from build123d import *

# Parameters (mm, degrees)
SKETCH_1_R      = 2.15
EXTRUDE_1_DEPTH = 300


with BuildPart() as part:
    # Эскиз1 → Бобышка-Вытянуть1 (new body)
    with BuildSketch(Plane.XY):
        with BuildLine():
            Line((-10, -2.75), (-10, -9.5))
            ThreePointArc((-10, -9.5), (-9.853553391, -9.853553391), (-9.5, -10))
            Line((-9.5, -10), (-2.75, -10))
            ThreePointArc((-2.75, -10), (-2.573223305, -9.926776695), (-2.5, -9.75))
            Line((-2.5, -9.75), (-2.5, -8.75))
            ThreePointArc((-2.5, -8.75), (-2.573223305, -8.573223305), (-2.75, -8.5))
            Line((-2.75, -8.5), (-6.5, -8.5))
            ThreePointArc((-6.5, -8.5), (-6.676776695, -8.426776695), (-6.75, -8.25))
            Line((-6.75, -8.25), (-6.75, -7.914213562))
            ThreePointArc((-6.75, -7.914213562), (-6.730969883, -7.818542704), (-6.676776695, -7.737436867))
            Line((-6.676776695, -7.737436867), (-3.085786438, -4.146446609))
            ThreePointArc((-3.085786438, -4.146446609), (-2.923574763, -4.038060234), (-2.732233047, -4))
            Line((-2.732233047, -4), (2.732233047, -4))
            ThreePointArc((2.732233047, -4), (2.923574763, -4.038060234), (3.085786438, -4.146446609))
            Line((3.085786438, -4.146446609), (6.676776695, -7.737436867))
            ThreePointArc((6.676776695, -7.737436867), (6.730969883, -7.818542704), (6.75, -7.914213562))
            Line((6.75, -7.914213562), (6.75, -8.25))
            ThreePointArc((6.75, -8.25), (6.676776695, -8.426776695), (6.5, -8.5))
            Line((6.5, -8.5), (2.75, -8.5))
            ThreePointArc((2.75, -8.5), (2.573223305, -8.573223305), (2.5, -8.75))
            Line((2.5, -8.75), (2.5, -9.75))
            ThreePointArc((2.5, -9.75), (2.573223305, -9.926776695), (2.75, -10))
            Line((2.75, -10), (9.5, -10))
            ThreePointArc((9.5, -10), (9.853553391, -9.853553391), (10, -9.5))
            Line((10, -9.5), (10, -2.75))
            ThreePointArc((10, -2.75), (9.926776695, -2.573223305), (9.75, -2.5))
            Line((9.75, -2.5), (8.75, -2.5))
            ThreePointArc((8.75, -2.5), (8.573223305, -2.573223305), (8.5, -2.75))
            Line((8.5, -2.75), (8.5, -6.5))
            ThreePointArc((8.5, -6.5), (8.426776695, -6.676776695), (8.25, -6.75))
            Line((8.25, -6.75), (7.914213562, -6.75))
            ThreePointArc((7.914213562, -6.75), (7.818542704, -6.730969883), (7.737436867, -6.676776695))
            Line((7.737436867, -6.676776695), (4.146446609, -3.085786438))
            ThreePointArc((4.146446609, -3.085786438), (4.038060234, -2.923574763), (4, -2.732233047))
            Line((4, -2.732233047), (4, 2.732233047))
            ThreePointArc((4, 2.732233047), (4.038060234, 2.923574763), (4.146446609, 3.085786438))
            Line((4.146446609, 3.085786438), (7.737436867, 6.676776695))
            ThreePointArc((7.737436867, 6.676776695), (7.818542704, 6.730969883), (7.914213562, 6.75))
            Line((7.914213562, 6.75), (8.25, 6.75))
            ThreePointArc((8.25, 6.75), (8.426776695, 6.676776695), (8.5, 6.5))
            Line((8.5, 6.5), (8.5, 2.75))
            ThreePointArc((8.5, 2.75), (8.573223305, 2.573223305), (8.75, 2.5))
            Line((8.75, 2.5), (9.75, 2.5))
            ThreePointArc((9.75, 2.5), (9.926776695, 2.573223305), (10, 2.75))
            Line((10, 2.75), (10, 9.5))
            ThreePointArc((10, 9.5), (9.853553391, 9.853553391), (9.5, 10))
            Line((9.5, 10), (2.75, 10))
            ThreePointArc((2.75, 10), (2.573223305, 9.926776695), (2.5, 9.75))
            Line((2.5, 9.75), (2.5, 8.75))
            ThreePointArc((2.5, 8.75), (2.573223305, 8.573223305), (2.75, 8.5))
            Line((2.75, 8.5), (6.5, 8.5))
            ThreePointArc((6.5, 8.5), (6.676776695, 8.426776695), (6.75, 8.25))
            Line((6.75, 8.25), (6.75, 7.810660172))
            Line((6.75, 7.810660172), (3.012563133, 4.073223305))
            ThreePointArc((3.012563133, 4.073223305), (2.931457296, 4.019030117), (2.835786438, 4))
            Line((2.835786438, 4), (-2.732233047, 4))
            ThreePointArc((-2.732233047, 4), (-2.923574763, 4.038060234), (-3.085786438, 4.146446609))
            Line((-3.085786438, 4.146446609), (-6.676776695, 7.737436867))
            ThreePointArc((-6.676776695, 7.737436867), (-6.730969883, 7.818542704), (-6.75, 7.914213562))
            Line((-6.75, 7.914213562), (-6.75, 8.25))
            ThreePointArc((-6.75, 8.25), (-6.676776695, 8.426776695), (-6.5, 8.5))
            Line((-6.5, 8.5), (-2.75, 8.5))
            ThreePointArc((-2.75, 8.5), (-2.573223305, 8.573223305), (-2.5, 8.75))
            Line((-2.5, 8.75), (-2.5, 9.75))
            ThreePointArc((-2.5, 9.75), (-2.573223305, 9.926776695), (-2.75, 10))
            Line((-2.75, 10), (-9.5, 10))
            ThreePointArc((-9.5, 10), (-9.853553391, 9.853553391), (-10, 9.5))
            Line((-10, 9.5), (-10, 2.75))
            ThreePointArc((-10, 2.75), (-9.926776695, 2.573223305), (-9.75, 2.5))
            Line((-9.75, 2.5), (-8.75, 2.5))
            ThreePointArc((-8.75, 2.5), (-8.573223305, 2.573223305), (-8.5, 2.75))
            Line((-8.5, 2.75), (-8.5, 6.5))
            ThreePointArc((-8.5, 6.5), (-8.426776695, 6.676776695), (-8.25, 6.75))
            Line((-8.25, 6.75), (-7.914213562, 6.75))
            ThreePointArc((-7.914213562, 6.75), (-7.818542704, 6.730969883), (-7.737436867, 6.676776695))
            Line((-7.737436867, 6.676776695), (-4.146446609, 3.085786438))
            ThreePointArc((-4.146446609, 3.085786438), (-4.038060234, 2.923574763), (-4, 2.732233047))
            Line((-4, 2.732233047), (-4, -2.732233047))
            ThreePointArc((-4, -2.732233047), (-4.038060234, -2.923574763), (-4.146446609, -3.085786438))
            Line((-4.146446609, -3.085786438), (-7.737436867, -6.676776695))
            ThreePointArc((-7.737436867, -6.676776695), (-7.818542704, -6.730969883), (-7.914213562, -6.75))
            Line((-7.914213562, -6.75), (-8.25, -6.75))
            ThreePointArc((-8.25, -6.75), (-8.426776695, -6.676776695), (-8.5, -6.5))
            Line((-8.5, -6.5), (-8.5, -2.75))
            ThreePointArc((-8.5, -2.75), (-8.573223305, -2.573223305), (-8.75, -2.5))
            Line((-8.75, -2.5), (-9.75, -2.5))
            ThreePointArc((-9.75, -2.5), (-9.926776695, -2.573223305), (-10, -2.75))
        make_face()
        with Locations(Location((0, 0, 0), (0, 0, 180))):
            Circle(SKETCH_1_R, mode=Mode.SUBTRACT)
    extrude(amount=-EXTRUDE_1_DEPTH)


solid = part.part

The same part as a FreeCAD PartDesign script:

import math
import FreeCAD as App
import Part
import Sketcher
Q = App.Units.Quantity

doc = App.newDocument("Part")
params = doc.addObject("Spreadsheet::Sheet", "Params")
for row, (alias, value) in enumerate([
    ("sketch1_diameter", "4.3 mm"),
    ("sketch1_radius", "0.5 mm"),
    ("sketch1_width", "1 mm"),
    ("sketch1_radius2", "0.25 mm"),
    ("sketch1_width2", "6.75 mm"),
    ("pad1_length", "300 mm"),
], start=1):
    params.set(f"A{row}", alias)
    params.set(f"B{row}", "=" + value)
    params.setAlias(f"B{row}", alias)

body = doc.addObject("PartDesign::Body", "Body")

sketch1 = doc.addObject("Sketcher::SketchObject", "Sketch")
body.addObject(sketch1)
sketch1.AttachmentSupport = (doc.XY_Plane, [""])
sketch1.MapMode = "FlatFace"
sketch1.addGeometry([
    Part.LineSegment(App.Vector(-10, -2.75, 0), App.Vector(-10, -9.5, 0)),
    Part.ArcOfCircle(Part.Circle(App.Vector(-9.5, -9.5, 0), App.Vector(0, 0, 1), 0.5), math.radians(180), math.radians(270)),
    Part.LineSegment(App.Vector(-9.5, -10, 0), App.Vector(-2.75, -10, 0)),
    Part.ArcOfCircle(Part.Circle(App.Vector(-2.75, -9.75, 0), App.Vector(0, 0, 1), 0.25), math.radians(-90), math.radians(0)),
    Part.LineSegment(App.Vector(-2.5, -9.75, 0), App.Vector(-2.5, -8.75, 0)),
    Part.ArcOfCircle(Part.Circle(App.Vector(-2.75, -8.75, 0), App.Vector(0, 0, 1), 0.25), math.radians(0), math.radians(90)),
    Part.LineSegment(App.Vector(-2.75, -8.5, 0), App.Vector(-6.5, -8.5, 0)),
    Part.ArcOfCircle(Part.Circle(App.Vector(-6.5, -8.25, 0), App.Vector(0, 0, 1), 0.25), math.radians(-180), math.radians(-90)),
    Part.LineSegment(App.Vector(-6.75, -8.25, 0), App.Vector(-6.75, -7.914214, 0)),
    Part.ArcOfCircle(Part.Circle(App.Vector(-6.5, -7.914214, 0), App.Vector(0, 0, 1), 0.25), math.radians(135), math.radians(180)),
    Part.LineSegment(App.Vector(-6.676777, -7.737437, 0), App.Vector(-3.085786, -4.146447, 0)),
    Part.ArcOfCircle(Part.Circle(App.Vector(-2.732233, -4.5, 0), App.Vector(0, 0, 1), 0.5), math.radians(90), math.radians(135)),
    Part.LineSegment(App.Vector(-2.732233, -4, 0), App.Vector(2.732233, -4, 0)),
    Part.ArcOfCircle(Part.Circle(App.Vector(2.732233, -4.5, 0), App.Vector(0, 0, 1), 0.5), math.radians(45), math.radians(90)),
    Part.LineSegment(App.Vector(3.085786, -4.146447, 0), App.Vector(6.676777, -7.737437, 0)),
    Part.ArcOfCircle(Part.Circle(App.Vector(6.5, -7.914214, 0), App.Vector(0, 0, 1), 0.25), math.radians(0), math.radians(45)),
    Part.LineSegment(App.Vector(6.75, -7.914214, 0), App.Vector(6.75, -8.25, 0)),
    Part.ArcOfCircle(Part.Circle(App.Vector(6.5, -8.25, 0), App.Vector(0, 0, 1), 0.25), math.radians(-90), math.radians(0)),
    Part.LineSegment(App.Vector(6.5, -8.5, 0), App.Vector(2.75, -8.5, 0)),
    Part.ArcOfCircle(Part.Circle(App.Vector(2.75, -8.75, 0), App.Vector(0, 0, 1), 0.25), math.radians(90), math.radians(180)),
    Part.LineSegment(App.Vector(2.5, -8.75, 0), App.Vector(2.5, -9.75, 0)),
    Part.ArcOfCircle(Part.Circle(App.Vector(2.75, -9.75, 0), App.Vector(0, 0, 1), 0.25), math.radians(-180), math.radians(-90)),
    Part.LineSegment(App.Vector(2.75, -10, 0), App.Vector(9.5, -10, 0)),
    Part.ArcOfCircle(Part.Circle(App.Vector(9.5, -9.5, 0), App.Vector(0, 0, 1), 0.5), math.radians(-90), math.radians(0)),
    Part.LineSegment(App.Vector(10, -9.5, 0), App.Vector(10, -2.75, 0)),
    Part.ArcOfCircle(Part.Circle(App.Vector(9.75, -2.75, 0), App.Vector(0, 0, 1), 0.25), math.radians(0), math.radians(90)),
    Part.LineSegment(App.Vector(9.75, -2.5, 0), App.Vector(8.75, -2.5, 0)),
    Part.ArcOfCircle(Part.Circle(App.Vector(8.75, -2.75, 0), App.Vector(0, 0, 1), 0.25), math.radians(90), math.radians(180)),
    Part.LineSegment(App.Vector(8.5, -2.75, 0), App.Vector(8.5, -6.5, 0)),
    Part.ArcOfCircle(Part.Circle(App.Vector(8.25, -6.5, 0), App.Vector(0, 0, 1), 0.25), math.radians(-90), math.radians(0)),
    Part.LineSegment(App.Vector(8.25, -6.75, 0), App.Vector(7.914214, -6.75, 0)),
    Part.ArcOfCircle(Part.Circle(App.Vector(7.914214, -6.5, 0), App.Vector(0, 0, 1), 0.25), math.radians(-135), math.radians(-90)),
    Part.LineSegment(App.Vector(7.737437, -6.676777, 0), App.Vector(4.146447, -3.085786, 0)),
    Part.ArcOfCircle(Part.Circle(App.Vector(4.5, -2.732233, 0), App.Vector(0, 0, 1), 0.5), math.radians(-180), math.radians(-135)),
    Part.LineSegment(App.Vector(4, -2.732233, 0), App.Vector(4, 2.732233, 0)),
    Part.ArcOfCircle(Part.Circle(App.Vector(4.5, 2.732233, 0), App.Vector(0, 0, 1), 0.5), math.radians(135), math.radians(180)),
    Part.LineSegment(App.Vector(4.146447, 3.085786, 0), App.Vector(7.737437, 6.676777, 0)),
    Part.ArcOfCircle(Part.Circle(App.Vector(7.914214, 6.5, 0), App.Vector(0, 0, 1), 0.25), math.radians(90), math.radians(135)),
    Part.LineSegment(App.Vector(7.914214, 6.75, 0), App.Vector(8.25, 6.75, 0)),
    Part.ArcOfCircle(Part.Circle(App.Vector(8.25, 6.5, 0), App.Vector(0, 0, 1), 0.25), math.radians(0), math.radians(90)),
    Part.LineSegment(App.Vector(8.5, 6.5, 0), App.Vector(8.5, 2.75, 0)),
    Part.ArcOfCircle(Part.Circle(App.Vector(8.75, 2.75, 0), App.Vector(0, 0, 1), 0.25), math.radians(-180), math.radians(-90)),
    Part.LineSegment(App.Vector(8.75, 2.5, 0), App.Vector(9.75, 2.5, 0)),
    Part.ArcOfCircle(Part.Circle(App.Vector(9.75, 2.75, 0), App.Vector(0, 0, 1), 0.25), math.radians(-90), math.radians(0)),
    Part.LineSegment(App.Vector(10, 2.75, 0), App.Vector(10, 9.5, 0)),
    Part.ArcOfCircle(Part.Circle(App.Vector(9.5, 9.5, 0), App.Vector(0, 0, 1), 0.5), math.radians(0), math.radians(90)),
    Part.LineSegment(App.Vector(9.5, 10, 0), App.Vector(2.75, 10, 0)),
    Part.ArcOfCircle(Part.Circle(App.Vector(2.75, 9.75, 0), App.Vector(0, 0, 1), 0.25), math.radians(90), math.radians(180)),
    Part.LineSegment(App.Vector(2.5, 9.75, 0), App.Vector(2.5, 8.75, 0)),
    Part.ArcOfCircle(Part.Circle(App.Vector(2.75, 8.75, 0), App.Vector(0, 0, 1), 0.25), math.radians(-180), math.radians(-90)),
    Part.LineSegment(App.Vector(2.75, 8.5, 0), App.Vector(6.5, 8.5, 0)),
    Part.ArcOfCircle(Part.Circle(App.Vector(6.5, 8.25, 0), App.Vector(0, 0, 1), 0.25), math.radians(0), math.radians(90)),
    Part.LineSegment(App.Vector(6.75, 8.25, 0), App.Vector(6.75, 7.81066, 0)),
    Part.LineSegment(App.Vector(6.75, 7.81066, 0), App.Vector(3.012563, 4.073223, 0)),
    Part.ArcOfCircle(Part.Circle(App.Vector(2.835786, 4.25, 0), App.Vector(0, 0, 1), 0.25), math.radians(-90), math.radians(-45)),
    Part.LineSegment(App.Vector(2.835786, 4, 0), App.Vector(-2.732233, 4, 0)),
    Part.ArcOfCircle(Part.Circle(App.Vector(-2.732233, 4.5, 0), App.Vector(0, 0, 1), 0.5), math.radians(-135), math.radians(-90)),
    Part.LineSegment(App.Vector(-3.085786, 4.146447, 0), App.Vector(-6.676777, 7.737437, 0)),
    Part.ArcOfCircle(Part.Circle(App.Vector(-6.5, 7.914214, 0), App.Vector(0, 0, 1), 0.25), math.radians(180), math.radians(225)),
    Part.LineSegment(App.Vector(-6.75, 7.914214, 0), App.Vector(-6.75, 8.25, 0)),
    Part.ArcOfCircle(Part.Circle(App.Vector(-6.5, 8.25, 0), App.Vector(0, 0, 1), 0.25), math.radians(90), math.radians(180)),
    Part.LineSegment(App.Vector(-6.5, 8.5, 0), App.Vector(-2.75, 8.5, 0)),
    Part.ArcOfCircle(Part.Circle(App.Vector(-2.75, 8.75, 0), App.Vector(0, 0, 1), 0.25), math.radians(-90), math.radians(0)),
    Part.LineSegment(App.Vector(-2.5, 8.75, 0), App.Vector(-2.5, 9.75, 0)),
    Part.ArcOfCircle(Part.Circle(App.Vector(-2.75, 9.75, 0), App.Vector(0, 0, 1), 0.25), math.radians(0), math.radians(90)),
    Part.LineSegment(App.Vector(-2.75, 10, 0), App.Vector(-9.5, 10, 0)),
    Part.ArcOfCircle(Part.Circle(App.Vector(-9.5, 9.5, 0), App.Vector(0, 0, 1), 0.5), math.radians(90), math.radians(180)),
    Part.LineSegment(App.Vector(-10, 9.5, 0), App.Vector(-10, 2.75, 0)),
    Part.ArcOfCircle(Part.Circle(App.Vector(-9.75, 2.75, 0), App.Vector(0, 0, 1), 0.25), math.radians(-180), math.radians(-90)),
    Part.LineSegment(App.Vector(-9.75, 2.5, 0), App.Vector(-8.75, 2.5, 0)),
    Part.ArcOfCircle(Part.Circle(App.Vector(-8.75, 2.75, 0), App.Vector(0, 0, 1), 0.25), math.radians(-90), math.radians(0)),
    Part.LineSegment(App.Vector(-8.5, 2.75, 0), App.Vector(-8.5, 6.5, 0)),
    Part.ArcOfCircle(Part.Circle(App.Vector(-8.25, 6.5, 0), App.Vector(0, 0, 1), 0.25), math.radians(90), math.radians(180)),
    Part.LineSegment(App.Vector(-8.25, 6.75, 0), App.Vector(-7.914214, 6.75, 0)),
    Part.ArcOfCircle(Part.Circle(App.Vector(-7.914214, 6.5, 0), App.Vector(0, 0, 1), 0.25), math.radians(45), math.radians(90)),
    Part.LineSegment(App.Vector(-7.737437, 6.676777, 0), App.Vector(-4.146447, 3.085786, 0)),
    Part.ArcOfCircle(Part.Circle(App.Vector(-4.5, 2.732233, 0), App.Vector(0, 0, 1), 0.5), math.radians(0), math.radians(45)),
    Part.LineSegment(App.Vector(-4, 2.732233, 0), App.Vector(-4, -2.732233, 0)),
    Part.ArcOfCircle(Part.Circle(App.Vector(-4.5, -2.732233, 0), App.Vector(0, 0, 1), 0.5), math.radians(-45), math.radians(0)),
    Part.LineSegment(App.Vector(-4.146447, -3.085786, 0), App.Vector(-7.737437, -6.676777, 0)),
    Part.ArcOfCircle(Part.Circle(App.Vector(-7.914214, -6.5, 0), App.Vector(0, 0, 1), 0.25), math.radians(-90), math.radians(-45)),
    Part.LineSegment(App.Vector(-7.914214, -6.75, 0), App.Vector(-8.25, -6.75, 0)),
    Part.ArcOfCircle(Part.Circle(App.Vector(-8.25, -6.5, 0), App.Vector(0, 0, 1), 0.25), math.radians(-180), math.radians(-90)),
    Part.LineSegment(App.Vector(-8.5, -6.5, 0), App.Vector(-8.5, -2.75, 0)),
    Part.ArcOfCircle(Part.Circle(App.Vector(-8.75, -2.75, 0), App.Vector(0, 0, 1), 0.25), math.radians(0), math.radians(90)),
    Part.LineSegment(App.Vector(-8.75, -2.5, 0), App.Vector(-9.75, -2.5, 0)),
    Part.ArcOfCircle(Part.Circle(App.Vector(-9.75, -2.75, 0), App.Vector(0, 0, 1), 0.25), math.radians(90), math.radians(180)),
    Part.Circle(App.Vector(0, 0, 0), App.Vector(0, 0, 1), 2.15),
], False)
sketch1.addConstraint([
    Sketcher.Constraint("Tangent", 0, 2, 1, 1),
    Sketcher.Constraint("Tangent", 1, 2, 2, 1),
    Sketcher.Constraint("Tangent", 2, 2, 3, 1),
    Sketcher.Constraint("Tangent", 3, 2, 4, 1),
    Sketcher.Constraint("Tangent", 4, 2, 5, 1),
    Sketcher.Constraint("Tangent", 5, 2, 6, 1),
    Sketcher.Constraint("Tangent", 6, 2, 7, 2),
    Sketcher.Constraint("Tangent", 7, 1, 8, 1),
    Sketcher.Constraint("Tangent", 8, 2, 9, 2),
    Sketcher.Constraint("Tangent", 9, 1, 10, 1),
    Sketcher.Constraint("Tangent", 10, 2, 11, 2),
    Sketcher.Constraint("Tangent", 11, 1, 12, 1),
    Sketcher.Constraint("Tangent", 12, 2, 13, 2),
    Sketcher.Constraint("Tangent", 13, 1, 14, 1),
    Sketcher.Constraint("Tangent", 14, 2, 15, 2),
    Sketcher.Constraint("Tangent", 15, 1, 16, 1),
    Sketcher.Constraint("Tangent", 16, 2, 17, 2),
    Sketcher.Constraint("Tangent", 17, 1, 18, 1),
    Sketcher.Constraint("Tangent", 18, 2, 19, 1),
    Sketcher.Constraint("Tangent", 19, 2, 20, 1),
    Sketcher.Constraint("Tangent", 20, 2, 21, 1),
    Sketcher.Constraint("Tangent", 21, 2, 22, 1),
    Sketcher.Constraint("Tangent", 22, 2, 23, 1),
    Sketcher.Constraint("Tangent", 23, 2, 24, 1),
    Sketcher.Constraint("Tangent", 24, 2, 25, 1),
    Sketcher.Constraint("Tangent", 25, 2, 26, 1),
    Sketcher.Constraint("Tangent", 26, 2, 27, 1),
    Sketcher.Constraint("Tangent", 27, 2, 28, 1),
    Sketcher.Constraint("Tangent", 28, 2, 29, 2),
    Sketcher.Constraint("Tangent", 29, 1, 30, 1),
    Sketcher.Constraint("Tangent", 30, 2, 31, 2),
    Sketcher.Constraint("Tangent", 31, 1, 32, 1),
    Sketcher.Constraint("Tangent", 32, 2, 33, 2),
    Sketcher.Constraint("Tangent", 33, 1, 34, 1),
    Sketcher.Constraint("Tangent", 34, 2, 35, 2),
    Sketcher.Constraint("Tangent", 35, 1, 36, 1),
    Sketcher.Constraint("Tangent", 36, 2, 37, 2),
    Sketcher.Constraint("Tangent", 37, 1, 38, 1),
    Sketcher.Constraint("Tangent", 38, 2, 39, 2),
    Sketcher.Constraint("Tangent", 39, 1, 40, 1),
    Sketcher.Constraint("Tangent", 40, 2, 41, 1),
    Sketcher.Constraint("Tangent", 41, 2, 42, 1),
    Sketcher.Constraint("Tangent", 42, 2, 43, 1),
    Sketcher.Constraint("Tangent", 43, 2, 44, 1),
    Sketcher.Constraint("Tangent", 44, 2, 45, 1),
    Sketcher.Constraint("Tangent", 45, 2, 46, 1),
    Sketcher.Constraint("Tangent", 46, 2, 47, 1),
    Sketcher.Constraint("Tangent", 47, 2, 48, 1),
    Sketcher.Constraint("Tangent", 48, 2, 49, 1),
    Sketcher.Constraint("Tangent", 49, 2, 50, 1),
    Sketcher.Constraint("Tangent", 50, 2, 51, 2),
    Sketcher.Constraint("Tangent", 51, 1, 52, 1),
    Sketcher.Constraint("Coincident", 52, 2, 53, 1),
    Sketcher.Constraint("Tangent", 53, 2, 54, 2),
    Sketcher.Constraint("Tangent", 54, 1, 55, 1),
    Sketcher.Constraint("Tangent", 55, 2, 56, 2),
    Sketcher.Constraint("Tangent", 56, 1, 57, 1),
    Sketcher.Constraint("Tangent", 57, 2, 58, 2),
    Sketcher.Constraint("Tangent", 58, 1, 59, 1),
    Sketcher.Constraint("Tangent", 59, 2, 60, 2),
    Sketcher.Constraint("Tangent", 60, 1, 61, 1),
    Sketcher.Constraint("Tangent", 61, 2, 62, 1),
    Sketcher.Constraint("Tangent", 62, 2, 63, 1),
    Sketcher.Constraint("Tangent", 63, 2, 64, 1),
    Sketcher.Constraint("Tangent", 64, 2, 65, 1),
    Sketcher.Constraint("Tangent", 65, 2, 66, 1),
    Sketcher.Constraint("Tangent", 66, 2, 67, 1),
    Sketcher.Constraint("Tangent", 67, 2, 68, 1),
    Sketcher.Constraint("Tangent", 68, 2, 69, 1),
    Sketcher.Constraint("Tangent", 69, 2, 70, 1),
    Sketcher.Constraint("Tangent", 70, 2, 71, 1),
    Sketcher.Constraint("Tangent", 71, 2, 72, 2),
    Sketcher.Constraint("Tangent", 72, 1, 73, 1),
    Sketcher.Constraint("Tangent", 73, 2, 74, 2),
    Sketcher.Constraint("Tangent", 74, 1, 75, 1),
    Sketcher.Constraint("Tangent", 75, 2, 76, 2),
    Sketcher.Constraint("Tangent", 76, 1, 77, 1),
    Sketcher.Constraint("Tangent", 77, 2, 78, 2),
    Sketcher.Constraint("Tangent", 78, 1, 79, 1),
    Sketcher.Constraint("Tangent", 79, 2, 80, 2),
    Sketcher.Constraint("Tangent", 80, 1, 81, 1),
    Sketcher.Constraint("Tangent", 81, 2, 82, 2),
    Sketcher.Constraint("Tangent", 82, 1, 83, 1),
    Sketcher.Constraint("Tangent", 83, 2, 84, 1),
    Sketcher.Constraint("Tangent", 84, 2, 85, 1),
    Sketcher.Constraint("Tangent", 85, 2, 86, 1),
    Sketcher.Constraint("Tangent", 86, 2, 0, 1),
    Sketcher.Constraint("Vertical", 0),
    Sketcher.Constraint("Horizontal", 2),
    Sketcher.Constraint("Vertical", 4),
    Sketcher.Constraint("Horizontal", 6),
    Sketcher.Constraint("Vertical", 8),
    Sketcher.Constraint("Horizontal", 12),
    Sketcher.Constraint("Vertical", 16),
    Sketcher.Constraint("Horizontal", 18),
    Sketcher.Constraint("Vertical", 20),
    Sketcher.Constraint("Horizontal", 22),
    Sketcher.Constraint("Vertical", 24),
    Sketcher.Constraint("Horizontal", 26),
    Sketcher.Constraint("Vertical", 28),
    Sketcher.Constraint("Horizontal", 30),
    Sketcher.Constraint("Vertical", 34),
    Sketcher.Constraint("Horizontal", 38),
    Sketcher.Constraint("Vertical", 40),
    Sketcher.Constraint("Horizontal", 42),
    Sketcher.Constraint("Vertical", 44),
    Sketcher.Constraint("Horizontal", 46),
    Sketcher.Constraint("Vertical", 48),
    Sketcher.Constraint("Horizontal", 50),
    Sketcher.Constraint("Vertical", 52),
    Sketcher.Constraint("Horizontal", 55),
    Sketcher.Constraint("Vertical", 59),
    Sketcher.Constraint("Horizontal", 61),
    Sketcher.Constraint("Vertical", 63),
    Sketcher.Constraint("Horizontal", 65),
    Sketcher.Constraint("Vertical", 67),
    Sketcher.Constraint("Horizontal", 69),
    Sketcher.Constraint("Vertical", 71),
    Sketcher.Constraint("Horizontal", 73),
    Sketcher.Constraint("Vertical", 77),
    Sketcher.Constraint("Horizontal", 81),
    Sketcher.Constraint("Vertical", 83),
    Sketcher.Constraint("Horizontal", 85),
    Sketcher.Constraint("Coincident", 87, 3, -1, 1),
    Sketcher.Constraint("Equal", 3, 5),
    Sketcher.Constraint("Equal", 5, 7),
    Sketcher.Constraint("Equal", 7, 9),
    Sketcher.Constraint("Equal", 1, 11),
    Sketcher.Constraint("Equal", 11, 13),
    Sketcher.Constraint("Equal", 9, 15),
    Sketcher.Constraint("Equal", 15, 17),
    Sketcher.Constraint("Equal", 17, 19),
    Sketcher.Constraint("Equal", 19, 21),
    Sketcher.Constraint("Equal", 13, 23),
    Sketcher.Constraint("Equal", 21, 25),
    Sketcher.Constraint("Equal", 25, 27),
    Sketcher.Constraint("Equal", 27, 29),
    Sketcher.Constraint("Equal", 29, 31),
    Sketcher.Constraint("Equal", 23, 33),
    Sketcher.Constraint("Equal", 33, 35),
    Sketcher.Constraint("Equal", 31, 37),
    Sketcher.Constraint("Equal", 37, 39),
    Sketcher.Constraint("Equal", 39, 41),
    Sketcher.Constraint("Equal", 41, 43),
    Sketcher.Constraint("Equal", 35, 45),
    Sketcher.Constraint("Equal", 43, 47),
    Sketcher.Constraint("Equal", 47, 49),
    Sketcher.Constraint("Equal", 49, 51),
    Sketcher.Constraint("Equal", 51, 54),
    Sketcher.Constraint("Equal", 45, 56),
    Sketcher.Constraint("Equal", 54, 58),
    Sketcher.Constraint("Equal", 58, 60),
    Sketcher.Constraint("Equal", 60, 62),
    Sketcher.Constraint("Equal", 62, 64),
    Sketcher.Constraint("Equal", 56, 66),
    Sketcher.Constraint("Equal", 64, 68),
    Sketcher.Constraint("Equal", 68, 70),
    Sketcher.Constraint("Equal", 70, 72),
    Sketcher.Constraint("Equal", 72, 74),
    Sketcher.Constraint("Equal", 66, 76),
    Sketcher.Constraint("Equal", 76, 78),
    Sketcher.Constraint("Equal", 74, 80),
    Sketcher.Constraint("Equal", 80, 82),
    Sketcher.Constraint("Equal", 82, 84),
    Sketcher.Constraint("Equal", 84, 86),
    Sketcher.Constraint("Symmetric", 1, 3, 45, 3, -1, 1),
    Sketcher.Constraint("Symmetric", 5, 3, 49, 3, -1, 1),
    Sketcher.Constraint("Symmetric", 13, 3, 56, 3, -1, 1),
    Sketcher.Constraint("Symmetric", 15, 3, 58, 3, -1, 1),
    Sketcher.Constraint("Symmetric", 19, 3, 62, 3, -1, 1),
    Sketcher.Constraint("Symmetric", 23, 3, 66, 3, -1, 1),
    Sketcher.Constraint("Symmetric", 27, 3, 70, 3, -1, 1),
    Sketcher.Constraint("Symmetric", 31, 3, 74, 3, -1, 1),
    Sketcher.Constraint("Symmetric", 33, 3, 76, 3, -1, 1),
    Sketcher.Constraint("Symmetric", 37, 3, 80, 3, -1, 1),
    Sketcher.Constraint("Symmetric", 41, 3, 84, 3, -1, 1),
    Sketcher.Constraint("Symmetric", 9, 3, 15, 3, -2),
    Sketcher.Constraint("Symmetric", 5, 3, 19, 3, -2),
    Sketcher.Constraint("Symmetric", 1, 3, 23, 3, -2),
    Sketcher.Constraint("Symmetric", 41, 3, 70, 3, -2),
    Sketcher.Constraint("Symmetric", 37, 3, 74, 3, -2),
    Sketcher.Constraint("Perpendicular", 10, 14),
    Sketcher.Constraint("Parallel", 14, 32),
    Sketcher.Constraint("Perpendicular", 32, 36),
    Sketcher.Constraint("Parallel", 36, 53),
    Sketcher.Constraint("Perpendicular", 75, 79),
    Sketcher.Constraint("Horizontal", 35, 3, 76, 3),
    Sketcher.Constraint("Vertical", 17, 3, 51, 3),
    Sketcher.Constraint("Equal", 65, 0),
    Sketcher.Constraint("Equal", 85, 4),
    Sketcher.Constraint("Equal", 81, 8),
    Sketcher.Constraint("Equal", 61, 28),
    Sketcher.Constraint("Equal", 12, 34),
    Sketcher.Constraint("Equal", 14, 32),
    Sketcher.Constraint("Diameter", 87, Q("4.3 mm")),
    Sketcher.Constraint("Radius", 1, Q("0.5 mm")),
    Sketcher.Constraint("DistanceX", 26, 2, 26, 1, Q("1 mm")),
    Sketcher.Constraint("Radius", 3, Q("0.25 mm")),
    Sketcher.Constraint("DistanceX", 0, 2, -1, 1, Q("10 mm")),
    Sketcher.Constraint("DistanceY", 11, 1, -1, 1, Q("4 mm")),
    Sketcher.Constraint("DistanceX", 2, 1, 2, 2, Q("6.75 mm")),
    Sketcher.Constraint("DistanceX", 6, 2, 6, 1, Q("3.75 mm")),
    Sketcher.Constraint("DistanceX", 55, 2, 55, 1, Q("5.568019 mm")),
    Sketcher.Constraint("DistanceY", 52, 2, 52, 1, Q("0.43934 mm")),
])
sketch1.setExpression("Constraints[194]", "Params.sketch1_diameter")
sketch1.setExpression("Constraints[195]", "Params.sketch1_radius")
sketch1.setExpression("Constraints[196]", "Params.sketch1_width")
sketch1.setExpression("Constraints[197]", "Params.sketch1_radius2")
sketch1.setExpression("Constraints[200]", "Params.sketch1_width2")
pad1 = doc.addObject("PartDesign::Pad", "Pad")
body.addObject(pad1)
pad1.Profile = sketch1
pad1.setExpression("Length", "Params.pad1_length")
pad1.Reversed = True

doc.recompute()
